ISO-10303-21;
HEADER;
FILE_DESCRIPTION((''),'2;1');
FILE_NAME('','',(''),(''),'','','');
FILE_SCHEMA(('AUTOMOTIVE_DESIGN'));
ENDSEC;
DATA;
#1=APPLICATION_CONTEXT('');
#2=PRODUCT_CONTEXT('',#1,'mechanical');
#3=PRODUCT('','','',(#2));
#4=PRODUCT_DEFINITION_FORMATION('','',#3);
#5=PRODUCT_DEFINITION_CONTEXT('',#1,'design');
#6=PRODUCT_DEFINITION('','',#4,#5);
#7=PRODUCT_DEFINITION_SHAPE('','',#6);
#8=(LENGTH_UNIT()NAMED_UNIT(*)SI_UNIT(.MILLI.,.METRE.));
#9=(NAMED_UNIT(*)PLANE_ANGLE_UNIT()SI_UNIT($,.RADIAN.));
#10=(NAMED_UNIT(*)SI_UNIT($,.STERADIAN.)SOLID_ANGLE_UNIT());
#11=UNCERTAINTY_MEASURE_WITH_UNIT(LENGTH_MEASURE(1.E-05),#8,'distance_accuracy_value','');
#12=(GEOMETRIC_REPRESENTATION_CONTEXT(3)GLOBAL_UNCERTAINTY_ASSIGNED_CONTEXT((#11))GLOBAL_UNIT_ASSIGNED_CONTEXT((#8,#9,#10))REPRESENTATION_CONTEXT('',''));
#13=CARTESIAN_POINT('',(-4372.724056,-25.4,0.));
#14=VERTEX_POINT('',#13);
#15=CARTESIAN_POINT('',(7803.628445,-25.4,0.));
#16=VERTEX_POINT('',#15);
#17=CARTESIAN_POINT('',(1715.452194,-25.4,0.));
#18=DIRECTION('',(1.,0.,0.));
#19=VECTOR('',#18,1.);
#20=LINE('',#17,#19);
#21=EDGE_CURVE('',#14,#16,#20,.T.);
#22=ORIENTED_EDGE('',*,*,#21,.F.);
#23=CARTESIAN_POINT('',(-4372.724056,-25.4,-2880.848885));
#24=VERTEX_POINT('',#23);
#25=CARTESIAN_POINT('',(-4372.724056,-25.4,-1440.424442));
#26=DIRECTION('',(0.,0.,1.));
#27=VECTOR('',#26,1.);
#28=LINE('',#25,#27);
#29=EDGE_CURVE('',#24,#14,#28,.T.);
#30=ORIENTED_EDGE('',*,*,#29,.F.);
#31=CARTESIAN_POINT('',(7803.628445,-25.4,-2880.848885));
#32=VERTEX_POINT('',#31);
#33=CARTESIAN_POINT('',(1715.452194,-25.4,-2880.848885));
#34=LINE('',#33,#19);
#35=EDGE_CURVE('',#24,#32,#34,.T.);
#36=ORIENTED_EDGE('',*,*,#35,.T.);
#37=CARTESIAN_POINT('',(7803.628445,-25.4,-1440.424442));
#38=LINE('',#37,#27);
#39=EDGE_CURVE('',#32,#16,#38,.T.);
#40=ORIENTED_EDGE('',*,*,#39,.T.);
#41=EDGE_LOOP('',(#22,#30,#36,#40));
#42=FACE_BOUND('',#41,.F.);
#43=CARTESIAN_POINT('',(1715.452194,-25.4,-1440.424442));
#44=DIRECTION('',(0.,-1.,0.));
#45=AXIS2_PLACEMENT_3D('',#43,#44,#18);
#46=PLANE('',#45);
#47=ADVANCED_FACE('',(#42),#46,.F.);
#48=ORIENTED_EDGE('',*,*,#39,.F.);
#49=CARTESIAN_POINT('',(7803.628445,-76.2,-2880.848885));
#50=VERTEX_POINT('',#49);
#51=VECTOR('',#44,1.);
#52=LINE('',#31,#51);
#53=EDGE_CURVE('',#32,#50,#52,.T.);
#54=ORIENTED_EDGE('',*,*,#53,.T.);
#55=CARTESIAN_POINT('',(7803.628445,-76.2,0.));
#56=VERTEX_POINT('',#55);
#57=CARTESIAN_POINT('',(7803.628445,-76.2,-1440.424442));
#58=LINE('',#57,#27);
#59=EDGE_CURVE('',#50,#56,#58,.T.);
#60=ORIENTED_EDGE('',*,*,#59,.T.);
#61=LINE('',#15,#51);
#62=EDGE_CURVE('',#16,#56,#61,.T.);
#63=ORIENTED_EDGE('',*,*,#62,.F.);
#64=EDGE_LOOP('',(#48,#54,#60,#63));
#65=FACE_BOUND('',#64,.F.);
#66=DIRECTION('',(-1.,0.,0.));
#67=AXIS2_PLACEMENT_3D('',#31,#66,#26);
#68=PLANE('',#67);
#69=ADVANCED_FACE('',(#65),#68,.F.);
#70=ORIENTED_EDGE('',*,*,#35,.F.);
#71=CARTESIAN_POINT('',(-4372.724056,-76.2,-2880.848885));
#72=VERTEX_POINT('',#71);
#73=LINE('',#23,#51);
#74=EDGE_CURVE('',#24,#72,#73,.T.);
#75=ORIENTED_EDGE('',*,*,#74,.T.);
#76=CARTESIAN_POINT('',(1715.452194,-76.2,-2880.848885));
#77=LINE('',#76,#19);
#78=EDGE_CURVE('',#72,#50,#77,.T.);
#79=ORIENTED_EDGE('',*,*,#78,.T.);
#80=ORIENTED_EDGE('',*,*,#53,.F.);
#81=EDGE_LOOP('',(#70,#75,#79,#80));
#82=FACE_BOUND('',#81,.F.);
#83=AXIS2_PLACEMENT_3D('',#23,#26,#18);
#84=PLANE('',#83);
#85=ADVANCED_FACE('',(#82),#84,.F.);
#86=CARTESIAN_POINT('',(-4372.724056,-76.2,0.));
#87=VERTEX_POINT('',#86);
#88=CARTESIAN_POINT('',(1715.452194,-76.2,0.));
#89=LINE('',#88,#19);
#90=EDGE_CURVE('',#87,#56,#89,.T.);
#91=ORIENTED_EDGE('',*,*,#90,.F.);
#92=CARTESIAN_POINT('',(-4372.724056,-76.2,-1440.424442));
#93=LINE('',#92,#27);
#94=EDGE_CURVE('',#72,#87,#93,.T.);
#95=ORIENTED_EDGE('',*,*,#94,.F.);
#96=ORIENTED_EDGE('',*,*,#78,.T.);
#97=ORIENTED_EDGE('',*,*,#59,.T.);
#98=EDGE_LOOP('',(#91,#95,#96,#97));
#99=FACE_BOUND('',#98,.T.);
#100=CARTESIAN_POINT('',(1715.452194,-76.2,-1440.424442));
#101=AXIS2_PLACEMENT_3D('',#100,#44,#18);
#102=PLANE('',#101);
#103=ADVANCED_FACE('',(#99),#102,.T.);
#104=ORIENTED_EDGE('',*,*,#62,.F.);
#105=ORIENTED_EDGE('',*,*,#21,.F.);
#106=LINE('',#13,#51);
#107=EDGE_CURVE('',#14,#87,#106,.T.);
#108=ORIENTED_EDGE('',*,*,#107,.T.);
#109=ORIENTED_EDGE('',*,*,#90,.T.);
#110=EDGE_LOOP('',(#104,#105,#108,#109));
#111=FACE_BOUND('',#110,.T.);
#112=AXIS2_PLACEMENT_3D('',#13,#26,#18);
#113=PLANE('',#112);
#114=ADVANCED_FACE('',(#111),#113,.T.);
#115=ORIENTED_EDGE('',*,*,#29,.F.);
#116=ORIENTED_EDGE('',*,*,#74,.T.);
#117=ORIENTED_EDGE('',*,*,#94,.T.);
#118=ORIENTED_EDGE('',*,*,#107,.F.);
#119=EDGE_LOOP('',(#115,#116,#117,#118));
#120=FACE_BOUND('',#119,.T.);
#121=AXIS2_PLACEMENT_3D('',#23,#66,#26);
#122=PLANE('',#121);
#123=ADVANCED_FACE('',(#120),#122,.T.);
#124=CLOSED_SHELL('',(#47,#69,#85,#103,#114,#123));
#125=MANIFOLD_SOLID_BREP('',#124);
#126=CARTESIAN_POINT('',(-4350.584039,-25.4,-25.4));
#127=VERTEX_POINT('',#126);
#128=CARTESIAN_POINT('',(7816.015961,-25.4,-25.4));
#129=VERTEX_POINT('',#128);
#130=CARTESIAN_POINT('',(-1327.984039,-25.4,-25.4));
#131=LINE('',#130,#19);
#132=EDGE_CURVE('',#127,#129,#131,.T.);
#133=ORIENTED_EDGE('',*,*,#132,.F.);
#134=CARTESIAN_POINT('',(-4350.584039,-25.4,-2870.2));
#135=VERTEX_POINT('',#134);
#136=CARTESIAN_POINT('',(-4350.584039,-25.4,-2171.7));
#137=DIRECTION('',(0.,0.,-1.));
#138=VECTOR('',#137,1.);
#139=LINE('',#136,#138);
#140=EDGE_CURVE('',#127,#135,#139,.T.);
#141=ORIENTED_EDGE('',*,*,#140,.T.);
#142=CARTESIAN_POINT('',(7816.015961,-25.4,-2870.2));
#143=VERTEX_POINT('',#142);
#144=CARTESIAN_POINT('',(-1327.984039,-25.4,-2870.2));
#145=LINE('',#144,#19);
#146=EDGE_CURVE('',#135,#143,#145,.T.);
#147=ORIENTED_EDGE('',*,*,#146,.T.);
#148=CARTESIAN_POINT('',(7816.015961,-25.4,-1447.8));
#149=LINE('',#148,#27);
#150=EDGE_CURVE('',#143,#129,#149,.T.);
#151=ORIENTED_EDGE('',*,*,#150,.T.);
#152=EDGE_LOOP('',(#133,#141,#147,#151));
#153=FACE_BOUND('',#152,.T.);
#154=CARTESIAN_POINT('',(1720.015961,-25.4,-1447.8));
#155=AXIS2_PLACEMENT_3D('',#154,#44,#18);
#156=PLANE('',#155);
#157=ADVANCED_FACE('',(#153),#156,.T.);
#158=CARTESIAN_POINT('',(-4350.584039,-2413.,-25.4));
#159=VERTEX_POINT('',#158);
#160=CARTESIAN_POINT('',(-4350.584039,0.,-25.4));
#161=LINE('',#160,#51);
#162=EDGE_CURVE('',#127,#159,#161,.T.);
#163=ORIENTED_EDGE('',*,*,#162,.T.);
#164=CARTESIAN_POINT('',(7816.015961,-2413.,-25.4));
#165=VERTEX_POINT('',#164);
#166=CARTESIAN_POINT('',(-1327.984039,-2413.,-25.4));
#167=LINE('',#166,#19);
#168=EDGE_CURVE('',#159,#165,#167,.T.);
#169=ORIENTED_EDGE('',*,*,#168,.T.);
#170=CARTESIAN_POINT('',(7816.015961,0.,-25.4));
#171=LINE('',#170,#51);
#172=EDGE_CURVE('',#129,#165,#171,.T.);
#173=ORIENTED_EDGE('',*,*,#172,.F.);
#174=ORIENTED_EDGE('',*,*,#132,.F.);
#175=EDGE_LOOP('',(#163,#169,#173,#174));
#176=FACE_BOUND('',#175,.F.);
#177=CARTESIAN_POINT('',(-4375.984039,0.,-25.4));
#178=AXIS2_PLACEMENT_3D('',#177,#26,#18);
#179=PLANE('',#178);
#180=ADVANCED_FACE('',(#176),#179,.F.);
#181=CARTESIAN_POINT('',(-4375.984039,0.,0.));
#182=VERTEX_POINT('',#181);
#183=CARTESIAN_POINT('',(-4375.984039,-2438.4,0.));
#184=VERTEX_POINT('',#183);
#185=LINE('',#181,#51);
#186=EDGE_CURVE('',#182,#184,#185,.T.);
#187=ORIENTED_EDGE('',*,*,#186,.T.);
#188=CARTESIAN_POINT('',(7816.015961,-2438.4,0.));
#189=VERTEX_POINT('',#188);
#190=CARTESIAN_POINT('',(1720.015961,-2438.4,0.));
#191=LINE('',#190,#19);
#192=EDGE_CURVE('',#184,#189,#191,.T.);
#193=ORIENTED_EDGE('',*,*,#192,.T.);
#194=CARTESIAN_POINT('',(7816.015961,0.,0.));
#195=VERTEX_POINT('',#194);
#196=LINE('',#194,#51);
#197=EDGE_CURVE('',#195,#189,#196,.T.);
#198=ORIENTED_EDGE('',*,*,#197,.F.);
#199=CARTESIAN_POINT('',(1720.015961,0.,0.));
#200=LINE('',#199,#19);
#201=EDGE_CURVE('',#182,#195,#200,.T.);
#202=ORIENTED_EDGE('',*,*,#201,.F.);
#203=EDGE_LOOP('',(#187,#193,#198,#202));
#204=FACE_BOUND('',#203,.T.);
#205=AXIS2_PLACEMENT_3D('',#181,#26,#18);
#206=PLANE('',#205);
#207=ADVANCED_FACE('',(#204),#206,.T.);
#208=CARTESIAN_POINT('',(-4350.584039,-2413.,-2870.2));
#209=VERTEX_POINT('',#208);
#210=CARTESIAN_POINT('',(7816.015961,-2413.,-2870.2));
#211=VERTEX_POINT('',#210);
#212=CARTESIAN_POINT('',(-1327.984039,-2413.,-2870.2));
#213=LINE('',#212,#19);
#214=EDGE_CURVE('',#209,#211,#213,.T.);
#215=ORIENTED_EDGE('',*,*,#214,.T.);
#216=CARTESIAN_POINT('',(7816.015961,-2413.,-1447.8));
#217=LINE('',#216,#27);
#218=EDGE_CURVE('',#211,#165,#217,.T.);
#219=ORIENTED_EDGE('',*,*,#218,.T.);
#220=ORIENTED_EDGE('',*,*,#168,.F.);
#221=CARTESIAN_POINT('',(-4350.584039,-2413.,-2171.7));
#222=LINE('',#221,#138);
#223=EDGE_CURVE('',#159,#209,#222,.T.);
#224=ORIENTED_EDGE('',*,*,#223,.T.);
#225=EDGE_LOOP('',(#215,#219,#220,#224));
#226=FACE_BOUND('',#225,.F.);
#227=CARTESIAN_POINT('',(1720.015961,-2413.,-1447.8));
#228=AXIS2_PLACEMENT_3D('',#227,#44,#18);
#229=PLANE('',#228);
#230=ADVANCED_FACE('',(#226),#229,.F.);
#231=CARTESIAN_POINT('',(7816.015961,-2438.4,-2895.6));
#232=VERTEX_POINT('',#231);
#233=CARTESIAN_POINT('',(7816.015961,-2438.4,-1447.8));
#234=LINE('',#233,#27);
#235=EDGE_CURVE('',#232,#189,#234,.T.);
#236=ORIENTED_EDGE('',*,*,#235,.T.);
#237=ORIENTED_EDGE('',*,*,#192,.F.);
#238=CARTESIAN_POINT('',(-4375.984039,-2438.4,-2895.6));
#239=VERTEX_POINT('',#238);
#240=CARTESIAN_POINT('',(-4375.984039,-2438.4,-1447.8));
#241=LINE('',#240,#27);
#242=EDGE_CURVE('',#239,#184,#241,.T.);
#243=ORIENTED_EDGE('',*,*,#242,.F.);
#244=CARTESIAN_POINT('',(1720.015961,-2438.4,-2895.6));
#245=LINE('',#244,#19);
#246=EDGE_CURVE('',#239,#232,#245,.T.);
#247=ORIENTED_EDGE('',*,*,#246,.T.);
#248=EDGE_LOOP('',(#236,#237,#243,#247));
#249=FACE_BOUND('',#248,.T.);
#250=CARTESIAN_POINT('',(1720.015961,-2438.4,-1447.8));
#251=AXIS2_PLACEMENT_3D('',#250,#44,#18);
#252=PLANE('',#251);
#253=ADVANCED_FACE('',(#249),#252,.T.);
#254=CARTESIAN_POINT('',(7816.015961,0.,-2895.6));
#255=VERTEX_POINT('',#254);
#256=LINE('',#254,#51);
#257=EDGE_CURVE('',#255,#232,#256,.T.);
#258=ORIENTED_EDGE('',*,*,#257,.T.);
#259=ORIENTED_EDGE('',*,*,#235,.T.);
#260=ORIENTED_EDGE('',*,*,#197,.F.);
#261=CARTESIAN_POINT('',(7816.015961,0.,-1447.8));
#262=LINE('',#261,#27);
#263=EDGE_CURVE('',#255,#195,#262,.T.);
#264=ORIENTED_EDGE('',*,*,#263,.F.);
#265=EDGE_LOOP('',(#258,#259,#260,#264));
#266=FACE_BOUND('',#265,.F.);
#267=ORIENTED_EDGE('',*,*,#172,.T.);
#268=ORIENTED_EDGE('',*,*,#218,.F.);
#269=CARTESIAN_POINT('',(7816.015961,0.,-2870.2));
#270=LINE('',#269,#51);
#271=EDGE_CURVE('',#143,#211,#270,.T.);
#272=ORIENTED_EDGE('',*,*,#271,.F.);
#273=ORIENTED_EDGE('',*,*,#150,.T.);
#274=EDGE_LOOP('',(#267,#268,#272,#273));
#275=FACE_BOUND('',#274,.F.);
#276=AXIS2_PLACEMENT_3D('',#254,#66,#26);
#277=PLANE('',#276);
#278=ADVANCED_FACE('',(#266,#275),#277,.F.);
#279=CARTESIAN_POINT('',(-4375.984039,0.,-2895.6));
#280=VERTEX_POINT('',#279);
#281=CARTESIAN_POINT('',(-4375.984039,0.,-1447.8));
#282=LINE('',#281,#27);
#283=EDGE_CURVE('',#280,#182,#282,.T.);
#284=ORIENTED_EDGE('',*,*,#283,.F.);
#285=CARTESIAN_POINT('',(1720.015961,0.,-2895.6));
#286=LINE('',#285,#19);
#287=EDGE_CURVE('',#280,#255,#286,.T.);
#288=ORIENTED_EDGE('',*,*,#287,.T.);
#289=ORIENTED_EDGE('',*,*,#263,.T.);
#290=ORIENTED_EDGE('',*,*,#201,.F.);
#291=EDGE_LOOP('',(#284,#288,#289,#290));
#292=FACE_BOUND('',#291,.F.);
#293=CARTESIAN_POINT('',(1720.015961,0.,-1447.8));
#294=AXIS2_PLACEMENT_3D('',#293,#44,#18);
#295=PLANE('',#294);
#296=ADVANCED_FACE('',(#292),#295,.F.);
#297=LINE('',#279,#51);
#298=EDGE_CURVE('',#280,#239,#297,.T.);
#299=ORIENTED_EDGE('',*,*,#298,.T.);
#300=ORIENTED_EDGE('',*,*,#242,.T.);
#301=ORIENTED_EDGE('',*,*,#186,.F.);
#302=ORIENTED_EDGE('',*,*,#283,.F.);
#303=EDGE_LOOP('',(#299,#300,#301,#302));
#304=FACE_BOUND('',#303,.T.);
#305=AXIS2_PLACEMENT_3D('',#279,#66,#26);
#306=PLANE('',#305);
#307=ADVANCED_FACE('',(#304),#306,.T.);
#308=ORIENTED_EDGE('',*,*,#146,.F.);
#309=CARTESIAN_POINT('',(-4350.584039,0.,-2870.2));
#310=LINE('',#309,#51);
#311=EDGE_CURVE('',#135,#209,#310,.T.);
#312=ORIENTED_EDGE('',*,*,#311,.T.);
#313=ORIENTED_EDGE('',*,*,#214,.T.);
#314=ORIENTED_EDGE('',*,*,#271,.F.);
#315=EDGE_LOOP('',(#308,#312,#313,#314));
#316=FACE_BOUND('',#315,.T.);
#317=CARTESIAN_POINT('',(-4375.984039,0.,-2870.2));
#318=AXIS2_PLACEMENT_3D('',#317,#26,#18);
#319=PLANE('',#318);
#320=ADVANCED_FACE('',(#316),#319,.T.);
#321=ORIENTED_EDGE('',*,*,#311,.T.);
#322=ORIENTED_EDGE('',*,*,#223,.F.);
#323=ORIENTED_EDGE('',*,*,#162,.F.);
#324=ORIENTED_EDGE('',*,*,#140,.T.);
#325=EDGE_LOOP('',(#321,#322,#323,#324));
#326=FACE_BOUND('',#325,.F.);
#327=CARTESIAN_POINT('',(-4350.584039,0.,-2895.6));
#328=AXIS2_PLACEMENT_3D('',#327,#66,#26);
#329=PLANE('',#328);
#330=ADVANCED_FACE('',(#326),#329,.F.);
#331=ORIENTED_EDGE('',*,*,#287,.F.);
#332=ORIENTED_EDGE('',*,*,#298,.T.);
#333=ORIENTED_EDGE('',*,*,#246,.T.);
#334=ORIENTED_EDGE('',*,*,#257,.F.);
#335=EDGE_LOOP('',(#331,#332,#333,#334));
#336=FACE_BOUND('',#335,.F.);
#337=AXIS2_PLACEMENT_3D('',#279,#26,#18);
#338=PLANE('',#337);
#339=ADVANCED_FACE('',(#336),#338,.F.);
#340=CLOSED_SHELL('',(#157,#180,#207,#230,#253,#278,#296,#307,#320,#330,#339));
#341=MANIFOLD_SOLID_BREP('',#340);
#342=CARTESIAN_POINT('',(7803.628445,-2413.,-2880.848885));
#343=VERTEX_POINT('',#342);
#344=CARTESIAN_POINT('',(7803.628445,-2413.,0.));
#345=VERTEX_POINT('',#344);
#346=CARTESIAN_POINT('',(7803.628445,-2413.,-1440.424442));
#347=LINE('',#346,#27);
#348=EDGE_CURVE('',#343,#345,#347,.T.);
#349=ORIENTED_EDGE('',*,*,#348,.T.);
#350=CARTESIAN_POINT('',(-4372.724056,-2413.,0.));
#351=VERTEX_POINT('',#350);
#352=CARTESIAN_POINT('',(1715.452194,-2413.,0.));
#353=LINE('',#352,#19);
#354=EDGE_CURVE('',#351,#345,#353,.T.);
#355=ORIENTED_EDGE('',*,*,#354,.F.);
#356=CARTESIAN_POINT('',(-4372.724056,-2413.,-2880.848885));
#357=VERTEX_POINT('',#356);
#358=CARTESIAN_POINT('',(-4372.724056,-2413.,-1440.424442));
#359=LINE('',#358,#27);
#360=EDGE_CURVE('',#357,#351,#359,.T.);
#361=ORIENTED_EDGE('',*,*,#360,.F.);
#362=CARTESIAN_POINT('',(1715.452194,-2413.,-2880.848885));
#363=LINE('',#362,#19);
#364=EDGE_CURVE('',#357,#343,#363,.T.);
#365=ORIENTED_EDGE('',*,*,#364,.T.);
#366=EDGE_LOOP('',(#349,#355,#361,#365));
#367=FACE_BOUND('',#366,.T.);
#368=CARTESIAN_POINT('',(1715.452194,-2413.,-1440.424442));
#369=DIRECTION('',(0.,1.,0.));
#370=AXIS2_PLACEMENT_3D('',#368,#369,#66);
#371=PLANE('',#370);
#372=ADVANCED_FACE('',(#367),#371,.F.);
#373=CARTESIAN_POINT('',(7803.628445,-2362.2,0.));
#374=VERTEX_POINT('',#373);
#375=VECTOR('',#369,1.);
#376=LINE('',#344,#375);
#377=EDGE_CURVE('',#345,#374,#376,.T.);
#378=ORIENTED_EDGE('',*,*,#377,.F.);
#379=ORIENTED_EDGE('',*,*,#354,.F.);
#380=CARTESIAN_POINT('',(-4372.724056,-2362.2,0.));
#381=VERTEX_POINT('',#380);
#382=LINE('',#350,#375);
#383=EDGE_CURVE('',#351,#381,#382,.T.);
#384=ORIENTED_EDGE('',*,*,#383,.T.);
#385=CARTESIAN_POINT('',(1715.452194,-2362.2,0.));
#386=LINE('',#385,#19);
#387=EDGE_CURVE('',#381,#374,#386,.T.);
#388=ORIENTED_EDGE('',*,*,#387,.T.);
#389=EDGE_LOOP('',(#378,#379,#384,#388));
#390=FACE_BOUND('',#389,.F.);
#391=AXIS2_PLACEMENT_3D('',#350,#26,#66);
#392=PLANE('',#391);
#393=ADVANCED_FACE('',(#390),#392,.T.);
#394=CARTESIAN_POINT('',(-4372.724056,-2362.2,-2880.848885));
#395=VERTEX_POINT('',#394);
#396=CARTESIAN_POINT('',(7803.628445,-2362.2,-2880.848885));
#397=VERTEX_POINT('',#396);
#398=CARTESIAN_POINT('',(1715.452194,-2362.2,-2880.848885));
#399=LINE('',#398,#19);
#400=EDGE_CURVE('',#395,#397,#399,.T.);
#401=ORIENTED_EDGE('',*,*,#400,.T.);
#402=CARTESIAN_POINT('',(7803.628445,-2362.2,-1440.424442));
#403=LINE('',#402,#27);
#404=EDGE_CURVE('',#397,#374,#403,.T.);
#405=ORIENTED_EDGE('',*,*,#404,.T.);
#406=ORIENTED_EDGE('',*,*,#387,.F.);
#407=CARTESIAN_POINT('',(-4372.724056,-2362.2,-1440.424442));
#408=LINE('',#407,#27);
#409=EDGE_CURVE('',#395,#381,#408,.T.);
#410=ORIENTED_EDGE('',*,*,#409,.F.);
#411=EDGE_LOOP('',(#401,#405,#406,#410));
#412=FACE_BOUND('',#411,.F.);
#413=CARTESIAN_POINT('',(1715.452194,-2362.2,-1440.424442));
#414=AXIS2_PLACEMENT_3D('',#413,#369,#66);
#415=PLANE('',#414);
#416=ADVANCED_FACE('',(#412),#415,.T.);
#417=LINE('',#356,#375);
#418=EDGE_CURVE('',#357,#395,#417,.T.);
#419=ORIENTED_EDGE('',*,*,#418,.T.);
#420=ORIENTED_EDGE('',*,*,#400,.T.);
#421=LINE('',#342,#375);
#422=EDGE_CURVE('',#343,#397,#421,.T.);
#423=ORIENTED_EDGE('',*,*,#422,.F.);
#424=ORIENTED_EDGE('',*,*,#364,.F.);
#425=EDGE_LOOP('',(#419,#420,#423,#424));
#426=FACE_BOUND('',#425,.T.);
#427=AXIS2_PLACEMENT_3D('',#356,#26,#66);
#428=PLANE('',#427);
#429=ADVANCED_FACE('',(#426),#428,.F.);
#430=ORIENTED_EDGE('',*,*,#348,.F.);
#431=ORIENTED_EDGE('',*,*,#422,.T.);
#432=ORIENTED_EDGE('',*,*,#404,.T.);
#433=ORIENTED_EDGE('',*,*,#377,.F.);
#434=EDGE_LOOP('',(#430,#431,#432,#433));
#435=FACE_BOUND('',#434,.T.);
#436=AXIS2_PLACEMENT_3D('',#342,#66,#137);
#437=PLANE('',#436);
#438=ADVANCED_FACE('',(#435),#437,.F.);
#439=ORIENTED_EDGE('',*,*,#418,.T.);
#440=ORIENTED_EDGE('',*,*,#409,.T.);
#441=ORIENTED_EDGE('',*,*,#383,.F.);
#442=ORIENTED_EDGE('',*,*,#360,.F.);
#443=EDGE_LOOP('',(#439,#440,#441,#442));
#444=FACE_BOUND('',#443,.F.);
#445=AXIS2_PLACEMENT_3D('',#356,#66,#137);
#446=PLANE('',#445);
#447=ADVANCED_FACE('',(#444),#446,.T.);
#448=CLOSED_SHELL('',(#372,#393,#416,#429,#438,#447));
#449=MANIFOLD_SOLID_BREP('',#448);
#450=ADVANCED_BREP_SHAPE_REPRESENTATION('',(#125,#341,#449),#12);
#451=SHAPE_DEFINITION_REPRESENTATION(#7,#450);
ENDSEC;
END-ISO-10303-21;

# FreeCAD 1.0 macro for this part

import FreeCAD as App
import Part
import Sketcher
Q = App.Units.Quantity


def faces_at(feature, points):
    """Names of the faces that lie closest to the given points."""
    faces = feature.Shape.Faces
    near = lambda p: min(range(len(faces)), key=lambda i: faces[i].distToShape(Part.Vertex(*p))[0])
    return sorted({f"Face{near(p) + 1}" for p in points})


def add_polygon(sketch, points):
    """Adds a closed chain of lines whose ends are joined by coincident constraints."""
    first, n = sketch.GeometryCount, len(points)
    for a, b in zip(points, points[1:] + points[:1]):
        sketch.addGeometry(Part.LineSegment(App.Vector(*a, 0), App.Vector(*b, 0)), False)
    for i in range(n):
        sketch.addConstraint(Sketcher.Constraint("Coincident", first + i, 2, first + (i + 1) % n, 1))

doc = App.newDocument("Part")
body = doc.addObject("PartDesign::Body", "Body")

# Sketch on XZ plane
sketch1 = doc.addObject("Sketcher::SketchObject", "Sketch")
body.addObject(sketch1)
sketch1.AttachmentSupport = (doc.XZ_Plane, [""])
sketch1.MapMode = "FlatFace"
add_polygon(sketch1, [(-4376, 0), (-4376, -2896), (7816, -2896), (7816, 0)])  # lines 0-3
sketch1.addConstraint(Sketcher.Constraint("Vertical", 0))
sketch1.addConstraint(Sketcher.Constraint("Horizontal", 1))
sketch1.addConstraint(Sketcher.Constraint("Vertical", 2))
sketch1.addConstraint(Sketcher.Constraint("Horizontal", 3))
sketch1.addConstraint(Sketcher.Constraint("PointOnObject", 2, 2, -1))
sketch1.addConstraint(Sketcher.Constraint("DistanceX", 1, 1, 1, 2, Q("480 in")))
sketch1.addConstraint(Sketcher.Constraint("DistanceY", 0, 2, 0, 1, Q("114 in")))
sketch1.addConstraint(Sketcher.Constraint("DistanceX", 0, 2, -1, 1, 4375.984039))
pad1 = doc.addObject("PartDesign::Pad", "Pad")
body.addObject(pad1)
pad1.Profile = sketch1
pad1.Length = Q("96 in")
doc.recompute()

thickness = doc.addObject("PartDesign::Thickness", "Thickness")
body.addObject(thickness)
thickness.Base = (pad1, faces_at(pad1, [(7816.016, -1219.2, -1447.8)]))
thickness.Value = Q("1 in")
thickness.Reversed = True
thickness.Join = "Arc"
body2 = doc.addObject("PartDesign::Body", "Body001")

# Sketch on XZ plane
sketch2 = doc.addObject("Sketcher::SketchObject", "Sketch001")
body2.addObject(sketch2)
sketch2.AttachmentSupport = (doc.getObject("XZ_Plane001"), [""])
sketch2.MapMode = "FlatFace"
sketch2.AttachmentOffset = App.Placement(App.Vector(0, 0, 1 * 25.4), App.Rotation())
add_polygon(sketch2, [(-4373, 0), (-4373, -2881), (7804, -2881), (7804, 0)])  # lines 0-3
sketch2.addConstraint(Sketcher.Constraint("Vertical", 0))
sketch2.addConstraint(Sketcher.Constraint("Horizontal", 1))
sketch2.addConstraint(Sketcher.Constraint("Vertical", 2))
sketch2.addConstraint(Sketcher.Constraint("Horizontal", 3))
sketch2.addConstraint(Sketcher.Constraint("PointOnObject", 2, 2, -1))
sketch2.addConstraint(Sketcher.Constraint("DistanceX", 1, 1, 1, 2, 12176.352501))
sketch2.addConstraint(Sketcher.Constraint("DistanceY", 0, 2, 0, 1, 2880.848885))
sketch2.addConstraint(Sketcher.Constraint("DistanceX", 0, 2, -1, 1, 4372.724056))
pad2 = doc.addObject("PartDesign::Pad", "Pad001")
body2.addObject(pad2)
pad2.Profile = sketch2
pad2.Length = Q("2 in")
body3 = doc.addObject("PartDesign::Body", "Body002")
doc.recompute()

mirroring = doc.addObject("Part::Mirroring", "Mirroring")
mirroring.Source = body2
mirroring.Base = App.Vector(0, -1219.2, 0)
mirroring.Normal = App.Vector(0, -1, 0)
body3.BaseFeature = mirroring
doc.recompute()
mirroring.Visibility = False

doc.recompute()
